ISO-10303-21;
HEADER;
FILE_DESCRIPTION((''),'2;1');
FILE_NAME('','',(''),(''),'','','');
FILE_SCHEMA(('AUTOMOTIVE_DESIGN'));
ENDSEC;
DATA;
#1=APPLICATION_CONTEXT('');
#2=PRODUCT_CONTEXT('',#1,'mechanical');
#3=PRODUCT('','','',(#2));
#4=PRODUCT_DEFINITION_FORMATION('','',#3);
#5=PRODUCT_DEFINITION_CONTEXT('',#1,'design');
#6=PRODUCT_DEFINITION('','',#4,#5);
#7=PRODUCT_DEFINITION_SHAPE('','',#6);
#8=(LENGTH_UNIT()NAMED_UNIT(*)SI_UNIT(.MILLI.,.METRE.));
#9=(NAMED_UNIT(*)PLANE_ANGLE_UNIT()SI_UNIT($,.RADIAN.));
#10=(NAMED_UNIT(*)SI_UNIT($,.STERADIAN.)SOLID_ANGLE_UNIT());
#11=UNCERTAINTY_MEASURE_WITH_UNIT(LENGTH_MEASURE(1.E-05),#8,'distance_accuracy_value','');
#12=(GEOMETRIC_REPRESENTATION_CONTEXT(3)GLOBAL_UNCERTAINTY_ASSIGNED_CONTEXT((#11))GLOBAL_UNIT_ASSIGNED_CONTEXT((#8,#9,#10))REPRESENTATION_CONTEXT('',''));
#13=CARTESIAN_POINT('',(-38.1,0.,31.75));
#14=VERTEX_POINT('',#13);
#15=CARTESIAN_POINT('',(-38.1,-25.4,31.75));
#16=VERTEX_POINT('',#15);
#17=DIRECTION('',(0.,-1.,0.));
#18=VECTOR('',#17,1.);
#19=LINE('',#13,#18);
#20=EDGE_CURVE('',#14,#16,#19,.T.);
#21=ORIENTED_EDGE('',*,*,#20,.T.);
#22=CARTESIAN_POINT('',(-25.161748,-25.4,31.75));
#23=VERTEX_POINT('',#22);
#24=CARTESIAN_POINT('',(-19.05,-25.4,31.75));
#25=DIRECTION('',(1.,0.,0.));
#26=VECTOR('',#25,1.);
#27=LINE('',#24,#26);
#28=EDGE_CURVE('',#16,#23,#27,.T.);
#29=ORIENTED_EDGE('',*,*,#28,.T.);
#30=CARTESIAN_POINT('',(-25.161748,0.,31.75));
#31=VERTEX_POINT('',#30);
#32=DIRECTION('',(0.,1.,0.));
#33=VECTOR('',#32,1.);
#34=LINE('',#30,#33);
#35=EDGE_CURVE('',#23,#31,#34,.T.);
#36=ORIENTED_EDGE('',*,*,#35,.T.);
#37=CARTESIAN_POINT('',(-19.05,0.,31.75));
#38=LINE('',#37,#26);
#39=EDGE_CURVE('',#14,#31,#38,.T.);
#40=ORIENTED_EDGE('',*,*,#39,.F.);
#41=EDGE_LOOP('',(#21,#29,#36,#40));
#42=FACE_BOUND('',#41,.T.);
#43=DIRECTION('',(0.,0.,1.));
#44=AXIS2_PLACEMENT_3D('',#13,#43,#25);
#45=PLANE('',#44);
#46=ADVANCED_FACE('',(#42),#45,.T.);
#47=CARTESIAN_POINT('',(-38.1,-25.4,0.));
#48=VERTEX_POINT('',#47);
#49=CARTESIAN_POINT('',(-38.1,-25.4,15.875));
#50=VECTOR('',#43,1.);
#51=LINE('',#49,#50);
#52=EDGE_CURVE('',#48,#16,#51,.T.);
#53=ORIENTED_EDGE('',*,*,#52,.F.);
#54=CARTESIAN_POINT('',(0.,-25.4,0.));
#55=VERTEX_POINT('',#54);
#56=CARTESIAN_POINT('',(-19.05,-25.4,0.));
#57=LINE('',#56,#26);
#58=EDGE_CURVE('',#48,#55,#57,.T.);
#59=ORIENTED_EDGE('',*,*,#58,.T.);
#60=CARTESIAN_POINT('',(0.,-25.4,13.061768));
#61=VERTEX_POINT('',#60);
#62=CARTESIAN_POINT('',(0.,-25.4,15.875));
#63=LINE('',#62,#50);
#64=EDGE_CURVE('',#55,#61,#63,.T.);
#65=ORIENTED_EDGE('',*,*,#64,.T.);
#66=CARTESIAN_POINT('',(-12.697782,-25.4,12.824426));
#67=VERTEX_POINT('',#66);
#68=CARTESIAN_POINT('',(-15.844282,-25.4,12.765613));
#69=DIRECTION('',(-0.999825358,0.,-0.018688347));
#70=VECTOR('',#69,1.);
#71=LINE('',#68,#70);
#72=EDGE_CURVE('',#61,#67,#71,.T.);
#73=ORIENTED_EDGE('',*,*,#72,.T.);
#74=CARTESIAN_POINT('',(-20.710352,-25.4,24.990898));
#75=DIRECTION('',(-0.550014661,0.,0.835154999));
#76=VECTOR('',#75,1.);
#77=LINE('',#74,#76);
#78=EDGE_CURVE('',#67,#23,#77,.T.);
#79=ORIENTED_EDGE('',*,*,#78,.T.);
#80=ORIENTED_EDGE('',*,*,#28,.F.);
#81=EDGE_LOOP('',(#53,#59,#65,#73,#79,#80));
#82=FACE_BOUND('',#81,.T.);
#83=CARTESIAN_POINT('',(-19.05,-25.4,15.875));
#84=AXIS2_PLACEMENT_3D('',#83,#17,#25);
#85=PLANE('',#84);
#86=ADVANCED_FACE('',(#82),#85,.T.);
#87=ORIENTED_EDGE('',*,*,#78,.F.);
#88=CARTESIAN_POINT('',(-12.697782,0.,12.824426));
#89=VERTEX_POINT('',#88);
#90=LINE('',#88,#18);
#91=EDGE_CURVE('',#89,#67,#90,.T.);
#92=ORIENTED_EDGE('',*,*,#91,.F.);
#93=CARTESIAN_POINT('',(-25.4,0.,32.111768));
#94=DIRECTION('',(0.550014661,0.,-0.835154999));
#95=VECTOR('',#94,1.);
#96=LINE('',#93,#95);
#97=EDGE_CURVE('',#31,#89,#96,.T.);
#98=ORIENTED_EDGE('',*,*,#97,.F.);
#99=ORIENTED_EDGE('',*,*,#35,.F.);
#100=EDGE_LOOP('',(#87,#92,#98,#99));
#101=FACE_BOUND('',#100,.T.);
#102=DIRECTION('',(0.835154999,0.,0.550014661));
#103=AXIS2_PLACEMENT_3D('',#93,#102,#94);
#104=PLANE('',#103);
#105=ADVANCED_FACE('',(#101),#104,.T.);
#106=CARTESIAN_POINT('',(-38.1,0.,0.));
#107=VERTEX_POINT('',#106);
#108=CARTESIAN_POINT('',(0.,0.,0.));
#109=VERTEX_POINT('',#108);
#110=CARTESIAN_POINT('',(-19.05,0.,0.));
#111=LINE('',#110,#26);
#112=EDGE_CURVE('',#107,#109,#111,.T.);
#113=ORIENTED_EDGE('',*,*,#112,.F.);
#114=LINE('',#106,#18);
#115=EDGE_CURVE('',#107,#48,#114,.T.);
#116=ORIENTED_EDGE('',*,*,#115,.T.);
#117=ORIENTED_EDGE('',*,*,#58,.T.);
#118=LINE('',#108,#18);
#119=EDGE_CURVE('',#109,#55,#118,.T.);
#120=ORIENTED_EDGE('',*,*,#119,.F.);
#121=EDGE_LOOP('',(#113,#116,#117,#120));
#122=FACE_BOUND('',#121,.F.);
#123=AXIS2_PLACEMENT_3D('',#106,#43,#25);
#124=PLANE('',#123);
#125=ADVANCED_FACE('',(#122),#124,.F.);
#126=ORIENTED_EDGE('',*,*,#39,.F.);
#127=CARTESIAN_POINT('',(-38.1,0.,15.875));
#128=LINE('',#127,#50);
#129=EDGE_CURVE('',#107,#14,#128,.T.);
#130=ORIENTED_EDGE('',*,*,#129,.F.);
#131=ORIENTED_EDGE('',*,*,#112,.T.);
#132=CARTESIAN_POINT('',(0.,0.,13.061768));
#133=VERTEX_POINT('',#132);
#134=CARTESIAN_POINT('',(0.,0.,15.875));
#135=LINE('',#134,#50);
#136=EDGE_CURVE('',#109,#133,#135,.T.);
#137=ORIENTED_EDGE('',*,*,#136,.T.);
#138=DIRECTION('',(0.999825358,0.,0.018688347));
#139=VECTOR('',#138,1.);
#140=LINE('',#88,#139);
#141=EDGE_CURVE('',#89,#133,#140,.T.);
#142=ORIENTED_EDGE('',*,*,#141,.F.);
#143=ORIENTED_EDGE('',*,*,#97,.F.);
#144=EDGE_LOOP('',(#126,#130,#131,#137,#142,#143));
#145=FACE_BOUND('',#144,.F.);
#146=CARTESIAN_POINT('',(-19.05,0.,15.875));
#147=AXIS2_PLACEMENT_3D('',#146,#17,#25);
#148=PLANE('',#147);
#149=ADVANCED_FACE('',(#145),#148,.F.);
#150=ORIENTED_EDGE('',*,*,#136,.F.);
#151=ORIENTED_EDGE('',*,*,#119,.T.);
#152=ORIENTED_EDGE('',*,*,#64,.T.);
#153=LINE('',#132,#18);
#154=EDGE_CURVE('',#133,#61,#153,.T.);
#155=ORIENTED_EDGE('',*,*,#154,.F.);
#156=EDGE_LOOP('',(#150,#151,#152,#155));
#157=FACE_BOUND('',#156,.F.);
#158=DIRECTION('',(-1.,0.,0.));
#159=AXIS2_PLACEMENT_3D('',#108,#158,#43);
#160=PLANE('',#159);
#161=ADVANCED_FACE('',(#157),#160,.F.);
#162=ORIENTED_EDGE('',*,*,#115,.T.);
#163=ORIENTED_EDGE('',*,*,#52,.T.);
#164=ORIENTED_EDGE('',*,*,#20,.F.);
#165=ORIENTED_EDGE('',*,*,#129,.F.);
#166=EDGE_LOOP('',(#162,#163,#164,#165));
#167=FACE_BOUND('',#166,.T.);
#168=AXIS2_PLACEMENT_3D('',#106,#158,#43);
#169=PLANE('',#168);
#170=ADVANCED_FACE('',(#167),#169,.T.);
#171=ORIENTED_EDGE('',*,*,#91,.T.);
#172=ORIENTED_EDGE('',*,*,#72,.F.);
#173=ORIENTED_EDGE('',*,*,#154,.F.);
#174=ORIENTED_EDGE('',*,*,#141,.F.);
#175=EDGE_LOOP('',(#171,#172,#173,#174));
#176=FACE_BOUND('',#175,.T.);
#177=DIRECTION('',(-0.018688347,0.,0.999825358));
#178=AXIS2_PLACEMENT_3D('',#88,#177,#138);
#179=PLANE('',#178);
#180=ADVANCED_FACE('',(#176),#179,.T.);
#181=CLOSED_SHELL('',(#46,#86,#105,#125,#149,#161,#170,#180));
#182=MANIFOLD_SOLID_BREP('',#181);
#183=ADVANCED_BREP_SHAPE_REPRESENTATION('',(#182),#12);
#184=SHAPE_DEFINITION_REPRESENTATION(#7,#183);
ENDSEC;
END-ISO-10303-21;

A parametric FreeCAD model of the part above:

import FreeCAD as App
import Part
import Sketcher
Q = App.Units.Quantity


def add_polygon(sketch, points):
    """Adds a closed chain of lines whose ends are joined by coincident constraints."""
    first, n = sketch.GeometryCount, len(points)
    for a, b in zip(points, points[1:] + points[:1]):
        sketch.addGeometry(Part.LineSegment(App.Vector(*a, 0), App.Vector(*b, 0)), False)
    for i in range(n):
        sketch.addConstraint(Sketcher.Constraint("Coincident", first + i, 2, first + (i + 1) % n, 1))

doc = App.newDocument("Part")
params = doc.addObject("Spreadsheet::Sheet", "Params")
for row, (alias, value) in enumerate([
    ("sketch1_width", "1.5 in"),
    ("sketch1_height", "1.25 in"),
    ("pad1_length", "1 in"),
    ("sketch2_width", "1 in"),
    ("sketch2_length", "0.5 in"),
    ("sketch2_height", "0.75 in"),
], start=1):
    params.set(f"A{row}", alias)
    params.set(f"B{row}", "=" + value)
    params.setAlias(f"B{row}", alias)

body = doc.addObject("PartDesign::Body", "Body")

# Sketch on XZ plane
sketch1 = body.newObject("Sketcher::SketchObject", "Sketch")
sketch1.AttachmentSupport = (doc.getObject("XZ_Plane"), [""])
sketch1.MapMode = "FlatFace"
add_polygon(sketch1, [(-38, 32), (-38, 0), (0, 0), (0, 32)])  # lines 0-3
sketch1.addConstraint([
    Sketcher.Constraint("Vertical", 0),
    Sketcher.Constraint("Horizontal", 1),
    Sketcher.Constraint("Vertical", 2),
    Sketcher.Constraint("Horizontal", 3),
    Sketcher.Constraint("Coincident", 1, 2, -1, 1),
    Sketcher.Constraint("DistanceX", 1, 1, 1, 2, Q("1.5 in")),
    Sketcher.Constraint("DistanceY", 0, 2, 0, 1, Q("1.25 in")),
])
sketch1.setExpression("Constraints[9]", "Params.sketch1_width")
sketch1.setExpression("Constraints[10]", "Params.sketch1_height")
pad1 = body.newObject("PartDesign::Pad", "Pad")
pad1.Profile = sketch1
pad1.setExpression("Length", "Params.pad1_length")

# Sketch on XZ plane
sketch2 = body.newObject("Sketcher::SketchObject", "Sketch001")
sketch2.AttachmentSupport = (doc.getObject("XZ_Plane"), [""])
sketch2.MapMode = "FlatFace"
add_polygon(sketch2, [(-13, 13), (0, 13), (0, 32), (-25, 32)])  # lines 0-3
sketch2.addConstraint([
    Sketcher.Constraint("Vertical", 1),
    Sketcher.Constraint("Horizontal", 2),
    Sketcher.Constraint("PointOnObject", 0, 2, -2),
    Sketcher.Constraint("DistanceX", 2, 2, 2, 1, Q("1 in")),
    Sketcher.Constraint("Distance", 0, Q("0.5 in")),
    Sketcher.Constraint("DistanceY", 1, 1, 1, 2, Q("0.75 in")),
    Sketcher.Constraint("DistanceY", -1, 1, 0, 2, 13.061768),
    Sketcher.Constraint("DistanceY", 3, 2, 0, 2, 0.237342),
])
sketch2.setExpression("Constraints[7]", "Params.sketch2_width")
sketch2.setExpression("Constraints[8]", "Params.sketch2_length")
sketch2.setExpression("Constraints[9]", "Params.sketch2_height")
pocket1 = body.newObject("PartDesign::Pocket", "Pocket")
pocket1.Profile = sketch2
pocket1.Type = "ThroughAll"
pocket1.Reversed = True

doc.recompute()
